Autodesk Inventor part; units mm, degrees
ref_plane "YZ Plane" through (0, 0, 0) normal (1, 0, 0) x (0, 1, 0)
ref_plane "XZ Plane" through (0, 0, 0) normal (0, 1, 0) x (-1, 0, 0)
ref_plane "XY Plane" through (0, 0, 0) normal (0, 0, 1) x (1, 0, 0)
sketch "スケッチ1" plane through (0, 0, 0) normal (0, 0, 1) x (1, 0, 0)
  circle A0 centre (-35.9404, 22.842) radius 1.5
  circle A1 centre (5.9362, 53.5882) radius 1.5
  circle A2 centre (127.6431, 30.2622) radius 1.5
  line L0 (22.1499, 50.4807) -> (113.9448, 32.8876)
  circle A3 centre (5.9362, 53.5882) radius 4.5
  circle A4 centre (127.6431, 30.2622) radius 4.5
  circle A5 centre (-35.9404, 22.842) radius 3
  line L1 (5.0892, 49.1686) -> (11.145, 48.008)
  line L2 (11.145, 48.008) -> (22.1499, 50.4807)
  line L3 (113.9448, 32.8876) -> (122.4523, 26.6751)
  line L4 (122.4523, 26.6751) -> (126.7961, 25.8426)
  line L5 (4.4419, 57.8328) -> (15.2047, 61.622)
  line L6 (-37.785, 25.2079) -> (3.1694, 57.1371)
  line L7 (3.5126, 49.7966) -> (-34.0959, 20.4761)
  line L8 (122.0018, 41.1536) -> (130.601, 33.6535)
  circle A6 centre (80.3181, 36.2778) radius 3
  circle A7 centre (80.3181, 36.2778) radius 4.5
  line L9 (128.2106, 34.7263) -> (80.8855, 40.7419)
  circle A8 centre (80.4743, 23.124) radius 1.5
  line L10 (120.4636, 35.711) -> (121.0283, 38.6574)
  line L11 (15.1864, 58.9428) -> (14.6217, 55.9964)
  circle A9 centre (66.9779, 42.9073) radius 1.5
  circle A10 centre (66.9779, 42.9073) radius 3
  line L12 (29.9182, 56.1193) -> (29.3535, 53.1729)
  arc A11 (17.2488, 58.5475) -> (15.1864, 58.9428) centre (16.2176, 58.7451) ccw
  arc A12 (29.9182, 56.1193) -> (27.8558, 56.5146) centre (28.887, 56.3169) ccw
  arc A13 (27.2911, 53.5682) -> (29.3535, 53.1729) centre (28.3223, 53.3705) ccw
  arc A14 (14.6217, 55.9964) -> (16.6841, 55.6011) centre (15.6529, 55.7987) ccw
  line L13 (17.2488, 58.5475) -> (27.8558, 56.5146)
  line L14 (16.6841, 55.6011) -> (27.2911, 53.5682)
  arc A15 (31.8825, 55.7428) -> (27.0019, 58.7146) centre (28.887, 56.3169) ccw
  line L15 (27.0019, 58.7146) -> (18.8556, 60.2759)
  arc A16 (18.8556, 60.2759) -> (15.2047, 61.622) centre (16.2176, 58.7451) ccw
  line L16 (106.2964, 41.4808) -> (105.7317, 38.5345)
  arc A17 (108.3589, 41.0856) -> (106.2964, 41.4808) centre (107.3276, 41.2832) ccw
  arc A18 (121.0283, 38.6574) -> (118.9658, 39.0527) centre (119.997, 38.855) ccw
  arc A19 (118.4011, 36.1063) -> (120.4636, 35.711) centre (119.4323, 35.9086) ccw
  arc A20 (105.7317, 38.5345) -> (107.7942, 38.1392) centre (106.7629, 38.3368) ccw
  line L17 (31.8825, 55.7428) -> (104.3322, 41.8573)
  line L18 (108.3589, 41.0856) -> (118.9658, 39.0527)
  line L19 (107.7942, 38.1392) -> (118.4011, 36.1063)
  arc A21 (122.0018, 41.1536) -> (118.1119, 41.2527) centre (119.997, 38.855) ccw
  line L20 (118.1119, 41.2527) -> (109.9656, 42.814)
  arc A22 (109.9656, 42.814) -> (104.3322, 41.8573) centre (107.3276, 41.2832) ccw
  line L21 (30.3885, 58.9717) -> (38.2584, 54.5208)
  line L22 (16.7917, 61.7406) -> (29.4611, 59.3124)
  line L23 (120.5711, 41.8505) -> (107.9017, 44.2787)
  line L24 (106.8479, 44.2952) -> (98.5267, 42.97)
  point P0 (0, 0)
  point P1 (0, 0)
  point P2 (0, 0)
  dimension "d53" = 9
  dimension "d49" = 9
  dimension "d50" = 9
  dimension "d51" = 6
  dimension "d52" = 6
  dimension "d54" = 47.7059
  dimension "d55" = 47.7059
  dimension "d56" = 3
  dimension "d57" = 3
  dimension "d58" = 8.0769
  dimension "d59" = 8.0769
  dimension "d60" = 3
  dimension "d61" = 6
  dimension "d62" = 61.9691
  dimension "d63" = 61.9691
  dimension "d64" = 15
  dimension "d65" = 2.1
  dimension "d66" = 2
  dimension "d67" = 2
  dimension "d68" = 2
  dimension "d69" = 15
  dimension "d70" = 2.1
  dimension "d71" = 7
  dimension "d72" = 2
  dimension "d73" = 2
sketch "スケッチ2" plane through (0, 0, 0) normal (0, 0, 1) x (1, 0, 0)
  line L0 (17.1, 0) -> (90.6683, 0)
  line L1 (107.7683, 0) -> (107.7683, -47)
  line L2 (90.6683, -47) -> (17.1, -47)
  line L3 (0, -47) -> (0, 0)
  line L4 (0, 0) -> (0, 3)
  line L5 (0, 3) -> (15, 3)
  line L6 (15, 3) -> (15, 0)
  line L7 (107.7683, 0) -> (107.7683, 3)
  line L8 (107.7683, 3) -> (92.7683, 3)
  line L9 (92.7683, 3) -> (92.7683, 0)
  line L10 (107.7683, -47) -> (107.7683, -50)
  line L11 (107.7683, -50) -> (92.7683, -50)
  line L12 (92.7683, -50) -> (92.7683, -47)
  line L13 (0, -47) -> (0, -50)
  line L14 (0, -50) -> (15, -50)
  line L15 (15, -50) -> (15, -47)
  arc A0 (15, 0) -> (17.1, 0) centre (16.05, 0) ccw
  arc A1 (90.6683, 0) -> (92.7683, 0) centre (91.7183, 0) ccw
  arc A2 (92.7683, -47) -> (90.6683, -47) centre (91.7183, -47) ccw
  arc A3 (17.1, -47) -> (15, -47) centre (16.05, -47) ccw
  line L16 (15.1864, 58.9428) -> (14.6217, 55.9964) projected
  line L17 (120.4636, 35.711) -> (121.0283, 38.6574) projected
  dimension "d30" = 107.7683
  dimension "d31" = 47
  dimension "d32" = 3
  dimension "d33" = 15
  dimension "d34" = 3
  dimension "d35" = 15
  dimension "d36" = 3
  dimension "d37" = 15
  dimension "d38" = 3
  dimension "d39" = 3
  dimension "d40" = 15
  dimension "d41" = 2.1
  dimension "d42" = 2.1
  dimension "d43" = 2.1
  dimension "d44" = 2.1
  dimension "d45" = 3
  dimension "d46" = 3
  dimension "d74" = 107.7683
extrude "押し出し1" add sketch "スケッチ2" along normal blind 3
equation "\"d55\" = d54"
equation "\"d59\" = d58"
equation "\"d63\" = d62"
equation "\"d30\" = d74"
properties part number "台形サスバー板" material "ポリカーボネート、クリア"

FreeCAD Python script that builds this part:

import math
import FreeCAD as App
import Part
import Sketcher

doc = App.newDocument("Part")
body = doc.addObject("PartDesign::Body", "Body")

sketch1 = body.newObject("Sketcher::SketchObject", "Sketch")
sketch1.AttachmentSupport = (doc.getObject("XY_Plane"), [""])
sketch1.MapMode = "FlatFace"
sketch1.addGeometry([
    Part.LineSegment(App.Vector(90.6683, 0, 0), App.Vector(17.1, 0, 0)),
    Part.ArcOfCircle(Part.Circle(App.Vector(16.05, 0, 0), App.Vector(0, 0, 1), 1.05), math.radians(180), math.radians(360)),
    Part.LineSegment(App.Vector(15, 0, 0), App.Vector(15, 3, 0)),
    Part.LineSegment(App.Vector(15, 3, 0), App.Vector(0, 3, 0)),
    Part.LineSegment(App.Vector(0, 3, 0), App.Vector(0, -50, 0)),
    Part.LineSegment(App.Vector(0, -50, 0), App.Vector(15, -50, 0)),
    Part.LineSegment(App.Vector(15, -50, 0), App.Vector(15, -47, 0)),
    Part.ArcOfCircle(Part.Circle(App.Vector(16.05, -47, 0), App.Vector(0, 0, 1), 1.05), math.radians(0), math.radians(180)),
    Part.LineSegment(App.Vector(17.1, -47, 0), App.Vector(90.6683, -47, 0)),
    Part.ArcOfCircle(Part.Circle(App.Vector(91.7183, -47, 0), App.Vector(0, 0, 1), 1.05), math.radians(0), math.radians(180)),
    Part.LineSegment(App.Vector(92.7683, -47, 0), App.Vector(92.7683, -50, 0)),
    Part.LineSegment(App.Vector(92.7683, -50, 0), App.Vector(107.7683, -50, 0)),
    Part.LineSegment(App.Vector(107.7683, -50, 0), App.Vector(107.7683, 3, 0)),
    Part.LineSegment(App.Vector(107.7683, 3, 0), App.Vector(92.7683, 3, 0)),
    Part.LineSegment(App.Vector(92.7683, 3, 0), App.Vector(92.7683, 0, 0)),
    Part.ArcOfCircle(Part.Circle(App.Vector(91.7183, 0, 0), App.Vector(0, 0, 1), 1.05), math.radians(180), math.radians(360)),
], False)
sketch1.addConstraint([
    Sketcher.Constraint("Coincident", 0, 2, 1, 2),
    Sketcher.Constraint("Tangent", 1, 1, 2, 1),
    Sketcher.Constraint("Coincident", 2, 2, 3, 1),
    Sketcher.Constraint("Coincident", 3, 2, 4, 1),
    Sketcher.Constraint("Coincident", 4, 2, 5, 1),
    Sketcher.Constraint("Coincident", 5, 2, 6, 1),
    Sketcher.Constraint("Tangent", 6, 2, 7, 2),
    Sketcher.Constraint("Coincident", 7, 1, 8, 1),
    Sketcher.Constraint("Coincident", 8, 2, 9, 2),
    Sketcher.Constraint("Tangent", 9, 1, 10, 1),
    Sketcher.Constraint("Coincident", 10, 2, 11, 1),
    Sketcher.Constraint("Coincident", 11, 2, 12, 1),
    Sketcher.Constraint("Coincident", 12, 2, 13, 1),
    Sketcher.Constraint("Coincident", 13, 2, 14, 1),
    Sketcher.Constraint("Tangent", 14, 2, 15, 2),
    Sketcher.Constraint("Coincident", 15, 1, 0, 1),
    Sketcher.Constraint("Horizontal", 0),
    Sketcher.Constraint("Vertical", 2),
    Sketcher.Constraint("Horizontal", 3),
    Sketcher.Constraint("Vertical", 4),
    Sketcher.Constraint("Horizontal", 5),
    Sketcher.Constraint("Vertical", 6),
    Sketcher.Constraint("Horizontal", 8),
    Sketcher.Constraint("Vertical", 10),
    Sketcher.Constraint("Horizontal", 11),
    Sketcher.Constraint("Vertical", 12),
    Sketcher.Constraint("Horizontal", 13),
    Sketcher.Constraint("Vertical", 14),
    Sketcher.Constraint("Equal", 1, 7),
    Sketcher.Constraint("Equal", 7, 9),
    Sketcher.Constraint("Equal", 9, 15),
    Sketcher.Constraint("PointOnObject", 1, 3, -1),
    Sketcher.Constraint("PointOnObject", 15, 3, -1),
    Sketcher.Constraint("PointOnObject", 0, 2, -1),
    Sketcher.Constraint("PointOnObject", 3, 2, -2),
    Sketcher.Constraint("Horizontal", 7, 3, 9, 3),
    Sketcher.Constraint("Horizontal", 6, 2, 7, 1),
    Sketcher.Constraint("Horizontal", 5, 2, 10, 2),
    Sketcher.Constraint("Horizontal", 3, 2, 12, 2),
    Sketcher.Constraint("Vertical", 1, 3, 7, 3),
    Sketcher.Constraint("Vertical", 9, 3, 15, 3),
    Sketcher.Constraint("Equal", 5, 11),
    Sketcher.Constraint("Equal", 2, 6),
    Sketcher.Constraint("DistanceX", 3, 2, 3, 1, 15.0),
    Sketcher.Constraint("DistanceY", 2, 1, 2, 2, 3.0),
    Sketcher.Constraint("Radius", 1, 1.05),
    Sketcher.Constraint("DistanceY", 7, 3, -1, 1, 47.0),
    Sketcher.Constraint("DistanceX", -1, 1, 11, 2, 107.7683),
])
pad1 = body.newObject("PartDesign::Pad", "Pad")
pad1.Profile = sketch1
pad1.Length = 3

doc.recompute()
